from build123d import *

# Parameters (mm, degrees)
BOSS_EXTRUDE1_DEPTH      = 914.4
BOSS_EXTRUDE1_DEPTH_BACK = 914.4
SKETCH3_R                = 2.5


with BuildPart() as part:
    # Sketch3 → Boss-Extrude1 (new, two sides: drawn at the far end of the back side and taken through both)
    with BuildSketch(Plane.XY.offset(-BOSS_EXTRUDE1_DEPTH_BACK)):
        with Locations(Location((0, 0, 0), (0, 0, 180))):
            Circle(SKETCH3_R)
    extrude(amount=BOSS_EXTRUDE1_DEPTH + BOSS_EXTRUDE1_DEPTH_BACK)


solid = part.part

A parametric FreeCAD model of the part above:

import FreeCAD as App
import Part
import Sketcher
Q = App.Units.Quantity

doc = App.newDocument("Part")
body = doc.addObject("PartDesign::Body", "Body")

sketch1 = body.newObject("Sketcher::SketchObject", "Sketch")
sketch1.AttachmentSupport = (doc.getObject("XY_Plane"), [""])
sketch1.MapMode = "FlatFace"
sketch1.addGeometry(Part.Circle(App.Vector(0, 0, 0), App.Vector(0, 0, 1), 2.5), False)
sketch1.addConstraint([
    Sketcher.Constraint("Coincident", 0, 3, -1, 1),
    Sketcher.Constraint("Diameter", 0, Q("5 mm")),
])
pad1 = body.newObject("PartDesign::Pad", "Pad")
pad1.Profile = sketch1
pad1.Type = "TwoLengths"
pad1.Length = 914.4
pad1.Length2 = 914.4

doc.recompute()
